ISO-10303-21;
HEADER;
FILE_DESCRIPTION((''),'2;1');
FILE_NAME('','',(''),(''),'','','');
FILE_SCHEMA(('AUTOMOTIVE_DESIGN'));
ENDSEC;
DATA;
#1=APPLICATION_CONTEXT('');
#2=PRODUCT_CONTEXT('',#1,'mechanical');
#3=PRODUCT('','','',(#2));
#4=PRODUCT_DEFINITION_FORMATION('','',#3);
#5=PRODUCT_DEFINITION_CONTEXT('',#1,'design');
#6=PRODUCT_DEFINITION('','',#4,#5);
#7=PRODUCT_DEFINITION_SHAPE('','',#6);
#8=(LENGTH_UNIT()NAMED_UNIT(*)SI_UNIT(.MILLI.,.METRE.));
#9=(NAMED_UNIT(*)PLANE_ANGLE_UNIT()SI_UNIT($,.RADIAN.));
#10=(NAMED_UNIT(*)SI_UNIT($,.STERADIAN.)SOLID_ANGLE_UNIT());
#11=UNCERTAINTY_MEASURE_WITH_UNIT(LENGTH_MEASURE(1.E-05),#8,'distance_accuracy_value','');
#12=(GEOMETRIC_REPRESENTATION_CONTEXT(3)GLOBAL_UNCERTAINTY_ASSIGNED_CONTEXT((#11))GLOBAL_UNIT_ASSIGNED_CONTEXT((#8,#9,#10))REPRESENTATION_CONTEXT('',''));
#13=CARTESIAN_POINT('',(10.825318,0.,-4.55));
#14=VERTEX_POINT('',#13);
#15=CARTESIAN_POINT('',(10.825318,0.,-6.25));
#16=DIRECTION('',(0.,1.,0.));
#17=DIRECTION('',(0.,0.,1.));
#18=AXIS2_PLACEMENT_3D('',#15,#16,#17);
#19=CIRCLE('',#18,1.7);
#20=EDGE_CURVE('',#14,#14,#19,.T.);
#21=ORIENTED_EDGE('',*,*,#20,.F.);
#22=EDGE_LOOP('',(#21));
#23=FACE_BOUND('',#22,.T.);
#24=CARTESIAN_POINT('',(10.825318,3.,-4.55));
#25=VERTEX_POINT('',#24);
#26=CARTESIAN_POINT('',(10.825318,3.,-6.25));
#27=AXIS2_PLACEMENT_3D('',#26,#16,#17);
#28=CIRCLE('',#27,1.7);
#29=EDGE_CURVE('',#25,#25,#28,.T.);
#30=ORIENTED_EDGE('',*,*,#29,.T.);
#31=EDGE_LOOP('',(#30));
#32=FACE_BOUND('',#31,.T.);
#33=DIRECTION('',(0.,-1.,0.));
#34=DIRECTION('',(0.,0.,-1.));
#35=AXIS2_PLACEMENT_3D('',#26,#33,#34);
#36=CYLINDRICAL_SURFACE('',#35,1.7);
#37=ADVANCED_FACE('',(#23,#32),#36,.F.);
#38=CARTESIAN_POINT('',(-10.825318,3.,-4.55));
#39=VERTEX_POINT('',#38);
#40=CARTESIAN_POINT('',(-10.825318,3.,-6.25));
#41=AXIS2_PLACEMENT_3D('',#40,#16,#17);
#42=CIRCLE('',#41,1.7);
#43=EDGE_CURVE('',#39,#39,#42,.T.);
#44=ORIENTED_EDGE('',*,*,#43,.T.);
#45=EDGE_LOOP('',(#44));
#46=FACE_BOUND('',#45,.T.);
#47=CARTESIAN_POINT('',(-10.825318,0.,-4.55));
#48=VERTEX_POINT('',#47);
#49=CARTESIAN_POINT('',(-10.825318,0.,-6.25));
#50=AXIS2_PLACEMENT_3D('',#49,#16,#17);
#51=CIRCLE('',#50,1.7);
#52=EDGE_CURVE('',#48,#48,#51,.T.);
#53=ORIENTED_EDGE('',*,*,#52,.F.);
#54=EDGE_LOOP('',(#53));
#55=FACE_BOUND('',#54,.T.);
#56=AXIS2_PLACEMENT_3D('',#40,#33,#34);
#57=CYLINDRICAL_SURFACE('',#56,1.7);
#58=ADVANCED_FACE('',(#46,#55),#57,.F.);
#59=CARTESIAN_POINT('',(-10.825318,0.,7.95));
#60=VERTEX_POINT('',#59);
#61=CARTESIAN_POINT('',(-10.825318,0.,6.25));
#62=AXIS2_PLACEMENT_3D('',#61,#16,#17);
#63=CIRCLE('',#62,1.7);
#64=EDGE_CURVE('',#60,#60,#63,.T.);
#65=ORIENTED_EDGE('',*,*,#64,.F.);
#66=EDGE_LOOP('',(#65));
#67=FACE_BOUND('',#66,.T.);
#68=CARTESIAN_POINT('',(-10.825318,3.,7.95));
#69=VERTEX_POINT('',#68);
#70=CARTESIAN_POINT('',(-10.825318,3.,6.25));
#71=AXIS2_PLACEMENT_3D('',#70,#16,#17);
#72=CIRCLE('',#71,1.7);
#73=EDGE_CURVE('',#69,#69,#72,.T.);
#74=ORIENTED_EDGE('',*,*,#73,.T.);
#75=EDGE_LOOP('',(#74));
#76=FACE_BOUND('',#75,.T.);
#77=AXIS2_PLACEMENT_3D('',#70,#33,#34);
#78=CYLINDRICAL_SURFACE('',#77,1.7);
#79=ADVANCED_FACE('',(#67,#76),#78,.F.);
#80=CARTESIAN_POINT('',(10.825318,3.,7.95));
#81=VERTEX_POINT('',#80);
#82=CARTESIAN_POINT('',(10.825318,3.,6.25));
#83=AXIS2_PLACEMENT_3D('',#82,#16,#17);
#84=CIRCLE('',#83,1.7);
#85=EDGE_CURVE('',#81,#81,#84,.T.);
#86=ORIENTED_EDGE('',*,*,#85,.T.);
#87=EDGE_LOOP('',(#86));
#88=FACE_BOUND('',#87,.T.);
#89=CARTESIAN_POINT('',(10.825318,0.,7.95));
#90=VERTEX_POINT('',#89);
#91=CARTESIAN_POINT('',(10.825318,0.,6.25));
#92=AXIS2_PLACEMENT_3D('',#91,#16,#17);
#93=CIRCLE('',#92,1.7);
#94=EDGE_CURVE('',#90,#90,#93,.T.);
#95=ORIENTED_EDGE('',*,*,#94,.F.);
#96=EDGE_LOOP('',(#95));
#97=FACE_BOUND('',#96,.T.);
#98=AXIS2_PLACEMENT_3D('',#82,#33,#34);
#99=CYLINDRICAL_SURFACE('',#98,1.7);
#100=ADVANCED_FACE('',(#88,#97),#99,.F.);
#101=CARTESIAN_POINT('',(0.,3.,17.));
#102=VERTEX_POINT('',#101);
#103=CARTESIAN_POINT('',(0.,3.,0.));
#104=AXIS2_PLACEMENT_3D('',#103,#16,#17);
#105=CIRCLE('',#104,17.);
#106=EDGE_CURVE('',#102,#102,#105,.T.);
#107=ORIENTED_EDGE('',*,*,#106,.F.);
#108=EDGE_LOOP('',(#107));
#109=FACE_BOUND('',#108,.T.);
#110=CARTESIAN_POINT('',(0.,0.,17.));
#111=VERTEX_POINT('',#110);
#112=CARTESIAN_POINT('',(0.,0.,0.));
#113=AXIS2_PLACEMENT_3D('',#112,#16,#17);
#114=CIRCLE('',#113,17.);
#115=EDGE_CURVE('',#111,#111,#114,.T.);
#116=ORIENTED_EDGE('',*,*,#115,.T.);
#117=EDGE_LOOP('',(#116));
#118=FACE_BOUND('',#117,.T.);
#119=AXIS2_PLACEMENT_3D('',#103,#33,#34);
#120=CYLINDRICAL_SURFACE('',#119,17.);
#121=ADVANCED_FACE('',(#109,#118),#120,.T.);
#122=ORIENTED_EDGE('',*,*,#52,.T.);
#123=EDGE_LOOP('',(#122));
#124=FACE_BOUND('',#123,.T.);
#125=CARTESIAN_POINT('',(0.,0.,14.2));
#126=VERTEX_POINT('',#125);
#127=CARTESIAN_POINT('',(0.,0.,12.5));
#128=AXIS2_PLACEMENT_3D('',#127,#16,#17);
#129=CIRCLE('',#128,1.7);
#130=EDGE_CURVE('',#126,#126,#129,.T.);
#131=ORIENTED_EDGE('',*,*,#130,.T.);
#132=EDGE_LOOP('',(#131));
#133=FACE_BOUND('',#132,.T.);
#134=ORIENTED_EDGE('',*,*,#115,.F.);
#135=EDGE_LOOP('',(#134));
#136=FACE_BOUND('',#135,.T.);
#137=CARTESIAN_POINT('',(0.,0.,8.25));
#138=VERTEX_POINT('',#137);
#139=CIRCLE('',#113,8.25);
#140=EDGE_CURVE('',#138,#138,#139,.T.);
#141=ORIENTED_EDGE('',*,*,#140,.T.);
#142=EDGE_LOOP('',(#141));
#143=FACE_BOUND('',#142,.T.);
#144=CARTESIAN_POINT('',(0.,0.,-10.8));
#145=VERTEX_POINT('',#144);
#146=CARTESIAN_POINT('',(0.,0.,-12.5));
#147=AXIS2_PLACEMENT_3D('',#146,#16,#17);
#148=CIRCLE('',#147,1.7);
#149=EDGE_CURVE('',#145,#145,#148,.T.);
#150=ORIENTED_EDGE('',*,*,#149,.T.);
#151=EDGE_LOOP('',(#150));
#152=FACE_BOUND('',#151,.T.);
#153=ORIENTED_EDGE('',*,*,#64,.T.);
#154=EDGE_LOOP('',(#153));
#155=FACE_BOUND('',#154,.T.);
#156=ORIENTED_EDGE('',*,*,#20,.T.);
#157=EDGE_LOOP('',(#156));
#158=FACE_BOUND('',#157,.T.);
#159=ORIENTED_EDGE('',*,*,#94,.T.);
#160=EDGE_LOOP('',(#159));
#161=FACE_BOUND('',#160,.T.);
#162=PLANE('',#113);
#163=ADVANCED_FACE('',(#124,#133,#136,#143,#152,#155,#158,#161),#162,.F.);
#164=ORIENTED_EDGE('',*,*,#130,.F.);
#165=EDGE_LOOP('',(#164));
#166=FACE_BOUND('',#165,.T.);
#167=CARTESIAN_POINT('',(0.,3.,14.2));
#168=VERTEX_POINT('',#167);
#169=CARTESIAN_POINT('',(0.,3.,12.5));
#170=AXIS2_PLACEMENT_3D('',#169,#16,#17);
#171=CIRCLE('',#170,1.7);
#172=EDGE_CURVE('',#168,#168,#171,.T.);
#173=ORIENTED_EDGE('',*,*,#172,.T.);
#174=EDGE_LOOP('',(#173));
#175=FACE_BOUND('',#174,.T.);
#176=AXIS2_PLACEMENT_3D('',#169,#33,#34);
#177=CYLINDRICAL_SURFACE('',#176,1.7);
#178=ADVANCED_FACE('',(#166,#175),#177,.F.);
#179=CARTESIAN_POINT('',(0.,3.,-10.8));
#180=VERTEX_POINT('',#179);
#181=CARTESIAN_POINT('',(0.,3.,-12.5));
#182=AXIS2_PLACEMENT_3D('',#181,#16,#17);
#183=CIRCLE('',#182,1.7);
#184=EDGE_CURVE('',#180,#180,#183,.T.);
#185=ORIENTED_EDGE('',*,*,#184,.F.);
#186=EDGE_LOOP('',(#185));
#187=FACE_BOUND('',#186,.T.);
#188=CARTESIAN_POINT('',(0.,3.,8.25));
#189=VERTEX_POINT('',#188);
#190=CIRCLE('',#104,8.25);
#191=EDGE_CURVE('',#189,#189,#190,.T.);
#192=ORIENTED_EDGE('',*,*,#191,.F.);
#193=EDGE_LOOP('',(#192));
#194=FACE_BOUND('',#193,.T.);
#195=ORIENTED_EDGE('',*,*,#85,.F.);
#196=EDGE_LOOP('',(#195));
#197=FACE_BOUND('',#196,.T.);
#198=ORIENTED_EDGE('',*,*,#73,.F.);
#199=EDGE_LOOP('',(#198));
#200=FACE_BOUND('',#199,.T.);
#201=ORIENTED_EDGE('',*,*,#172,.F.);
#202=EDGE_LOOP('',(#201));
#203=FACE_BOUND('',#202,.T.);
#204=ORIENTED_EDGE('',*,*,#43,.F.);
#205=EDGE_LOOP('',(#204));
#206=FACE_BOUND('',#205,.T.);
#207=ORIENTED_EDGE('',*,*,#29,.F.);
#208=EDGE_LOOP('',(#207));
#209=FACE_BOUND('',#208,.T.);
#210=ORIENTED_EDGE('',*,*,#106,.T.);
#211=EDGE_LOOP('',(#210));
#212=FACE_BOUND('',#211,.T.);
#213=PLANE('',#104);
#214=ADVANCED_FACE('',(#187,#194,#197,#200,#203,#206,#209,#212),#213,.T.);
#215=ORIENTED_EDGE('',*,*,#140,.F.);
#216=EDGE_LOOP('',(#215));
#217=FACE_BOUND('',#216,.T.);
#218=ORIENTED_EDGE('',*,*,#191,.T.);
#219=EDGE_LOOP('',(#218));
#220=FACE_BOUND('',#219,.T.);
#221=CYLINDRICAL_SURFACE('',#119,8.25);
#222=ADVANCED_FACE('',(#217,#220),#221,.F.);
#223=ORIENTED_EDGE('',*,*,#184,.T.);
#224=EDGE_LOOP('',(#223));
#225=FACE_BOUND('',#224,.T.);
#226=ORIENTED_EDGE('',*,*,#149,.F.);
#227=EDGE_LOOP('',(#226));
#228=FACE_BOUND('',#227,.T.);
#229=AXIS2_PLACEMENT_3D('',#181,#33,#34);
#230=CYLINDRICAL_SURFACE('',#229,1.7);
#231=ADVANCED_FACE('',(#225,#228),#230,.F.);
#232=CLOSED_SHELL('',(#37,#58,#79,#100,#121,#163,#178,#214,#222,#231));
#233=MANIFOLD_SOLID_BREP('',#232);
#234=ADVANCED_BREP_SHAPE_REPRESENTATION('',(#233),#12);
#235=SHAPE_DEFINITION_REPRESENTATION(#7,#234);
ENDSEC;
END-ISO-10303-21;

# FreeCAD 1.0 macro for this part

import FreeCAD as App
import Part
import Sketcher
Q = App.Units.Quantity

doc = App.newDocument("Part")
body = doc.addObject("PartDesign::Body", "Body")

sketch1 = body.newObject("Sketcher::SketchObject", "Sketch")
sketch1.AttachmentSupport = (doc.getObject("XZ_Plane"), [""])
sketch1.MapMode = "FlatFace"
sketch1.addGeometry([
    Part.Circle(App.Vector(0, 0, 0), App.Vector(0, 0, 1), 17),
    Part.Circle(App.Vector(-10.8, -6.2, 0), App.Vector(0, 0, 1), 1.7),
    Part.Circle(App.Vector(0, -12.5, 0), App.Vector(0, 0, 1), 1.7),
    Part.Circle(App.Vector(-10.8, 6.2, 0), App.Vector(0, 0, 1), 1.7),
    Part.Circle(App.Vector(10.8, -6.2, 0), App.Vector(0, 0, 1), 1.7),
    Part.Circle(App.Vector(0, 0, 0), App.Vector(0, 0, 1), 8.2),
    Part.Circle(App.Vector(0, 12.5, 0), App.Vector(0, 0, 1), 1.7),
    Part.Circle(App.Vector(10.8, 6.2, 0), App.Vector(0, 0, 1), 1.7),
], False)
sketch1.addConstraint([
    Sketcher.Constraint("Coincident", 0, 3, -1, 1),
    Sketcher.Constraint("Coincident", 5, 3, -1, 1),
    Sketcher.Constraint("Equal", 1, 2),
    Sketcher.Constraint("Equal", 2, 3),
    Sketcher.Constraint("Equal", 3, 4),
    Sketcher.Constraint("Equal", 4, 6),
    Sketcher.Constraint("Equal", 6, 7),
    Sketcher.Constraint("Symmetric", 3, 3, 4, 3, -1, 1),
    Sketcher.Constraint("Symmetric", 2, 3, 6, 3, -1, 1),
    Sketcher.Constraint("Symmetric", 1, 3, 7, 3, -1, 1),
    Sketcher.Constraint("Symmetric", 1, 3, 4, 3, -2),
    Sketcher.Constraint("PointOnObject", 2, 3, -2),
    Sketcher.Constraint("Diameter", 0, Q("34 mm")),
    Sketcher.Constraint("Diameter", 1, Q("3.4 mm")),
    Sketcher.Constraint("Diameter", 5, Q("16.5 mm")),
    Sketcher.Constraint("DistanceY", 2, 3, -1, 1, Q("12.5 mm")),
    Sketcher.Constraint("DistanceY", 1, 3, 3, 3, Q("12.5 mm")),
    Sketcher.Constraint("DistanceX", 1, 3, -1, 1, Q("10.825318 mm")),
])
pad1 = body.newObject("PartDesign::Pad", "Pad")
pad1.Profile = sketch1
pad1.Length = 3
pad1.Reversed = True

doc.recompute()
